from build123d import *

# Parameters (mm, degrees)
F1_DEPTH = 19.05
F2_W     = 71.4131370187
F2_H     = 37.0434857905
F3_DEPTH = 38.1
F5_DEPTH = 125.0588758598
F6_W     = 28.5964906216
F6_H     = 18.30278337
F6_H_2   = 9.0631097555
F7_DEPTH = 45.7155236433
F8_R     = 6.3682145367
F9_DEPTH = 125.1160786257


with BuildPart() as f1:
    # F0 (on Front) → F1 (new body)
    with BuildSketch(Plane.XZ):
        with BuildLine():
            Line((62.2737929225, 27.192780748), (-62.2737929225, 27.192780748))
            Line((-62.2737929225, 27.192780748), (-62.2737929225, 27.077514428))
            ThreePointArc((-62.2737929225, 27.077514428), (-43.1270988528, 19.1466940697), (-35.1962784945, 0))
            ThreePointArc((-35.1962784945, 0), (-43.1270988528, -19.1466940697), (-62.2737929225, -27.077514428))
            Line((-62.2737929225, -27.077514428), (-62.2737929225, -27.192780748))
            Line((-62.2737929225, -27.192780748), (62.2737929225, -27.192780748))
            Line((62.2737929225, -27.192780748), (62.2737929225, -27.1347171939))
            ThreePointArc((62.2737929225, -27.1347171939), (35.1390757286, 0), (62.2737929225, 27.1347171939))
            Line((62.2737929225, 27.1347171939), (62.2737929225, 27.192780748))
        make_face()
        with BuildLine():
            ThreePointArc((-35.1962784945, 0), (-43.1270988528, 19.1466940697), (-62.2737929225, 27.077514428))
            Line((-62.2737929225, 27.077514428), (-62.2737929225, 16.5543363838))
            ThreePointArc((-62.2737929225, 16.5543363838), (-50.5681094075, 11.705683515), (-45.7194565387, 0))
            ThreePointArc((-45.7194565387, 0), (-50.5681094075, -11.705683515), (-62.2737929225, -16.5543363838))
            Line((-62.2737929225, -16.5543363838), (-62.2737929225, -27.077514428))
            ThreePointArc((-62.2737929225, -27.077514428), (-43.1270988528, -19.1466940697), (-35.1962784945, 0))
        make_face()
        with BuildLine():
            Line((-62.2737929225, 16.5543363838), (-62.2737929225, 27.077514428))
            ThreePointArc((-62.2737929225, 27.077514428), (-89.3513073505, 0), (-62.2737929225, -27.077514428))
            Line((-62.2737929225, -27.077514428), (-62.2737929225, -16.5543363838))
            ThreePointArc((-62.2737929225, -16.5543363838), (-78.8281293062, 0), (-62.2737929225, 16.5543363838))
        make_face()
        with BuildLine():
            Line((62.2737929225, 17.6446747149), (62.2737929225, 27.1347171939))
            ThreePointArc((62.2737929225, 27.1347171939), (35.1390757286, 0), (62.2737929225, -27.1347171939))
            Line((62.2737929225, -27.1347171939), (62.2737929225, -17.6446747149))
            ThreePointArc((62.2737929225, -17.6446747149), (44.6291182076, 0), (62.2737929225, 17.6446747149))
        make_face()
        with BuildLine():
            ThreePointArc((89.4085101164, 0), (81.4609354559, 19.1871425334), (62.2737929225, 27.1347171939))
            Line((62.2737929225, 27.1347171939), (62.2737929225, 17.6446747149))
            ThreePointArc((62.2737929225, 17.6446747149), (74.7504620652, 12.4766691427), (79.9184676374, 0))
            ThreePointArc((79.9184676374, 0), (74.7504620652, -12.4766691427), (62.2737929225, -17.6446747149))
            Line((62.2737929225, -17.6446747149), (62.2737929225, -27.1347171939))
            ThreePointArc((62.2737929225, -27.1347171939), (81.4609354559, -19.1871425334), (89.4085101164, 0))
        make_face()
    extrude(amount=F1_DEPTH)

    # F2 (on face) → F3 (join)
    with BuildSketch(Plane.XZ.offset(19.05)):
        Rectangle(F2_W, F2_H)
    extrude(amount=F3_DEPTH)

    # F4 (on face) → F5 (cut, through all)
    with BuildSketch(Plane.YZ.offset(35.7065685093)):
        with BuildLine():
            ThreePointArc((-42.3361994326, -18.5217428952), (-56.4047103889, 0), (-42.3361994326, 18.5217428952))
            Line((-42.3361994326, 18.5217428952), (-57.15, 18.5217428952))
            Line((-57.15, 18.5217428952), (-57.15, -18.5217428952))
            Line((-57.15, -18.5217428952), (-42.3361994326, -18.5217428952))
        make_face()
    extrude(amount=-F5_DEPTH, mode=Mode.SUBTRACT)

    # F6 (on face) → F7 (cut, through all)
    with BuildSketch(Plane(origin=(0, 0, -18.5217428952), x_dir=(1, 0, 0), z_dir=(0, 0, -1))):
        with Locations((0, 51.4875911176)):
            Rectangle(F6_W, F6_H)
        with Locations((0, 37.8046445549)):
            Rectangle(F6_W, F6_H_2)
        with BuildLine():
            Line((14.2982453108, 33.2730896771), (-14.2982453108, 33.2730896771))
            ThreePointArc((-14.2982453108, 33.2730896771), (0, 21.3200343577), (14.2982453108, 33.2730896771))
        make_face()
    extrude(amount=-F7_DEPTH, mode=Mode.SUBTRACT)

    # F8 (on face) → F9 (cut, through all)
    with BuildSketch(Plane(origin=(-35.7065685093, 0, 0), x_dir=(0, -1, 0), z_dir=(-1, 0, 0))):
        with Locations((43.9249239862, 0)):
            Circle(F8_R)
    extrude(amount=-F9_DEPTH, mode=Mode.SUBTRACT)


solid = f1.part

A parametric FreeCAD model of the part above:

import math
import FreeCAD as App
import Part
import Sketcher
Q = App.Units.Quantity

doc = App.newDocument("Part")
body = doc.addObject("PartDesign::Body", "Body")

# Sketch on XZ plane
sketch1 = doc.addObject("Sketcher::SketchObject", "Sketch")
body.addObject(sketch1)
sketch1.AttachmentSupport = (doc.XZ_Plane, [""])
sketch1.MapMode = "FlatFace"
sketch1.addGeometry([
    Part.LineSegment(App.Vector(62.273793, 27.192781, 0), App.Vector(-62.273793, 27.192781, 0)),  # 0
    Part.LineSegment(App.Vector(-62.273793, 27.192781, 0), App.Vector(-62.273793, 27.077514, 0)),  # 1
    Part.ArcOfCircle(Part.Circle(App.Vector(-62.273793, 0, 0), App.Vector(0, 0, 1), 27.077514), math.radians(90), math.radians(270)),  # 2
    Part.LineSegment(App.Vector(-62.273793, -27.077514, 0), App.Vector(-62.273793, -27.192781, 0)),  # 3
    Part.LineSegment(App.Vector(-62.273793, -27.192781, 0), App.Vector(62.273793, -27.192781, 0)),  # 4
    Part.LineSegment(App.Vector(62.273793, -27.192781, 0), App.Vector(62.273793, -27.134717, 0)),  # 5
    Part.ArcOfCircle(Part.Circle(App.Vector(62.273793, 0, 0), App.Vector(0, 0, 1), 27.134717), math.radians(-90), math.radians(0)),  # 6
    Part.ArcOfCircle(Part.Circle(App.Vector(62.273793, 0, 0), App.Vector(0, 0, 1), 27.134717), math.radians(0), math.radians(90)),  # 7
    Part.LineSegment(App.Vector(62.273793, 27.134717, 0), App.Vector(62.273793, 27.192781, 0)),  # 8
    Part.ArcOfCircle(Part.Circle(App.Vector(62.273793, 0, 0), App.Vector(0, 0, 1), 17.644675), math.radians(90), math.radians(270)),  # 9
    Part.ArcOfCircle(Part.Circle(App.Vector(62.273793, 0, 0), App.Vector(0, 0, 1), 17.644675), math.radians(0), math.radians(90)),  # 10
    Part.ArcOfCircle(Part.Circle(App.Vector(62.273793, 0, 0), App.Vector(0, 0, 1), 17.644675), math.radians(-90), math.radians(0)),  # 11
    Part.ArcOfCircle(Part.Circle(App.Vector(-62.273793, 0, 0), App.Vector(0, 0, 1), 16.554336), math.radians(0), math.radians(90)),  # 12
    Part.ArcOfCircle(Part.Circle(App.Vector(-62.273793, 0, 0), App.Vector(0, 0, 1), 16.554336), math.radians(-90), math.radians(0)),  # 13
    Part.ArcOfCircle(Part.Circle(App.Vector(-62.273793, 0, 0), App.Vector(0, 0, 1), 16.554336), math.radians(90), math.radians(270)),  # 14
], False)
sketch1.addConstraint([
    Sketcher.Constraint("Coincident", 0, 2, 1, 1),
    Sketcher.Constraint("Coincident", 1, 2, 2, 1),
    Sketcher.Constraint("Coincident", 2, 2, 3, 1),
    Sketcher.Constraint("Coincident", 3, 2, 4, 1),
    Sketcher.Constraint("Coincident", 4, 2, 5, 1),
    Sketcher.Constraint("Coincident", 5, 2, 6, 1),
    Sketcher.Constraint("Tangent", 6, 2, 7, 1),
    Sketcher.Constraint("Coincident", 7, 2, 8, 1),
    Sketcher.Constraint("Coincident", 8, 2, 0, 1),
    Sketcher.Constraint("Tangent", 9, 1, 10, 2),
    Sketcher.Constraint("Tangent", 10, 1, 11, 2),
    Sketcher.Constraint("Tangent", 11, 1, 9, 2),
    Sketcher.Constraint("Tangent", 12, 1, 13, 2),
    Sketcher.Constraint("Tangent", 13, 1, 14, 2),
    Sketcher.Constraint("Tangent", 14, 1, 12, 2),
    Sketcher.Constraint("Horizontal", 0),
    Sketcher.Constraint("Vertical", 1),
    Sketcher.Constraint("Vertical", 3),
    Sketcher.Constraint("Horizontal", 4),
    Sketcher.Constraint("Vertical", 5),
    Sketcher.Constraint("Vertical", 8),
    Sketcher.Constraint("Coincident", 9, 3, 6, 3),
    Sketcher.Constraint("Coincident", 12, 3, 2, 3),
    Sketcher.Constraint("Equal", 6, 7),
    Sketcher.Constraint("Symmetric", 2, 3, 6, 3, -1, 1),
    Sketcher.Constraint("Symmetric", 0, 2, 4, 2, -1, 1),
    Sketcher.Constraint("Symmetric", 1, 2, 2, 2, -1),
    Sketcher.Constraint("PointOnObject", 6, 2, -1),
    Sketcher.Constraint("PointOnObject", 10, 1, -1),
    Sketcher.Constraint("PointOnObject", 12, 1, -1),
    Sketcher.Constraint("Vertical", 14, 3, 0, 2),
    Sketcher.Constraint("Vertical", 5, 2, 7, 2),
    Sketcher.Constraint("Vertical", 8, 2, 9, 1),
    Sketcher.Constraint("Vertical", 9, 1, 11, 1),
    Sketcher.Constraint("Vertical", 3, 2, 13, 1),
    Sketcher.Constraint("Vertical", 13, 1, 14, 1),
    Sketcher.Constraint("Radius", 2, Q("27.077514 mm")),
    Sketcher.Constraint("Radius", 6, Q("27.134717 mm")),
    Sketcher.Constraint("Radius", 9, Q("17.644675 mm")),
    Sketcher.Constraint("Radius", 12, Q("16.554336 mm")),
    Sketcher.Constraint("DistanceX", 0, 2, 0, 1, Q("124.547586 mm")),
    Sketcher.Constraint("DistanceY", 1, 2, 1, 1, Q("0.115266 mm")),
])
pad1 = doc.addObject("PartDesign::Pad", "Pad")
body.addObject(pad1)
pad1.Profile = sketch1
pad1.Length = Q("0.75 in")

# Sketch on XZ plane
sketch2 = doc.addObject("Sketcher::SketchObject", "Sketch001")
body.addObject(sketch2)
sketch2.AttachmentSupport = (doc.XZ_Plane, [""])
sketch2.MapMode = "FlatFace"
sketch2.AttachmentOffset = App.Placement(App.Vector(0, 0, 0.75 * 25.4), App.Rotation())
sketch2.addGeometry([
    Part.LineSegment(App.Vector(-35.706569, 18.521743, 0), App.Vector(-35.706569, -18.521743, 0)),
    Part.LineSegment(App.Vector(-35.706569, -18.521743, 0), App.Vector(35.706569, -18.521743, 0)),
    Part.LineSegment(App.Vector(35.706569, -18.521743, 0), App.Vector(35.706569, 18.521743, 0)),
    Part.LineSegment(App.Vector(35.706569, 18.521743, 0), App.Vector(-35.706569, 18.521743, 0)),
], False)
sketch2.addConstraint([
    Sketcher.Constraint("Coincident", 0, 2, 1, 1),
    Sketcher.Constraint("Coincident", 1, 2, 2, 1),
    Sketcher.Constraint("Coincident", 2, 2, 3, 1),
    Sketcher.Constraint("Coincident", 3, 2, 0, 1),
    Sketcher.Constraint("Vertical", 0),
    Sketcher.Constraint("Horizontal", 1),
    Sketcher.Constraint("Vertical", 2),
    Sketcher.Constraint("Horizontal", 3),
    Sketcher.Constraint("Symmetric", 0, 2, 2, 2, -1, 1),
    Sketcher.Constraint("DistanceX", 1, 1, 1, 2, Q("71.413137 mm")),
    Sketcher.Constraint("DistanceY", 0, 2, 0, 1, Q("37.043486 mm")),
])
pad2 = doc.addObject("PartDesign::Pad", "Pad001")
body.addObject(pad2)
pad2.Profile = sketch2
pad2.Length = Q("1.5 in")

# Sketch on YZ plane
sketch3 = doc.addObject("Sketcher::SketchObject", "Sketch002")
body.addObject(sketch3)
sketch3.AttachmentSupport = (doc.YZ_Plane, [""])
sketch3.MapMode = "FlatFace"
sketch3.AttachmentOffset = App.Placement(App.Vector(0, 0, 35.706569), App.Rotation())
sketch3.addGeometry([
    Part.ArcOfCircle(Part.Circle(App.Vector(-37.178157, 0, 0), App.Vector(0, 0, 1), 19.226554), math.radians(105.561766), math.radians(254.438234)),
    Part.LineSegment(App.Vector(-42.336199, 18.521743, 0), App.Vector(-57.15, 18.521743, 0)),
    Part.LineSegment(App.Vector(-57.15, 18.521743, 0), App.Vector(-57.15, -18.521743, 0)),
    Part.LineSegment(App.Vector(-57.15, -18.521743, 0), App.Vector(-42.336199, -18.521743, 0)),
], False)
sketch3.addConstraint([
    Sketcher.Constraint("Coincident", 0, 1, 1, 1),
    Sketcher.Constraint("Coincident", 1, 2, 2, 1),
    Sketcher.Constraint("Coincident", 2, 2, 3, 1),
    Sketcher.Constraint("Coincident", 3, 2, 0, 2),
    Sketcher.Constraint("Horizontal", 1),
    Sketcher.Constraint("Vertical", 2),
    Sketcher.Constraint("Horizontal", 3),
    Sketcher.Constraint("Symmetric", 0, 1, 3, 2, -1),
    Sketcher.Constraint("DistanceX", 1, 2, -1, 1, Q("2.25 in")),
    Sketcher.Constraint("DistanceX", 1, 2, 1, 1, Q("14.813801 mm")),
    Sketcher.Constraint("Radius", 0, Q("19.226554 mm")),
    Sketcher.Constraint("DistanceY", 2, 2, 2, 1, Q("37.043486 mm")),
])
pocket1 = doc.addObject("PartDesign::Pocket", "Pocket")
body.addObject(pocket1)
pocket1.Profile = sketch3
pocket1.Type = "ThroughAll"

# Sketch on XY plane
sketch4 = doc.addObject("Sketcher::SketchObject", "Sketch003")
body.addObject(sketch4)
sketch4.AttachmentSupport = (doc.XY_Plane, [""])
sketch4.MapMode = "FlatFace"
sketch4.AttachmentOffset = App.Placement(App.Vector(0, 0, -18.521743), App.Rotation())
sketch4.addGeometry([
    Part.LineSegment(App.Vector(-14.298245, -60.638983, 0), App.Vector(-14.298245, -33.27309, 0)),
    Part.ArcOfCircle(Part.Circle(App.Vector(0, -35.848343, 0), App.Vector(0, 0, 1), 14.528309), math.radians(10.210064), math.radians(169.789936)),
    Part.LineSegment(App.Vector(14.298245, -33.27309, 0), App.Vector(14.298245, -60.638983, 0)),
    Part.LineSegment(App.Vector(14.298245, -60.638983, 0), App.Vector(-14.298245, -60.638983, 0)),
], False)
sketch4.addConstraint([
    Sketcher.Constraint("Coincident", 0, 2, 1, 2),
    Sketcher.Constraint("Coincident", 1, 1, 2, 1),
    Sketcher.Constraint("Coincident", 2, 2, 3, 1),
    Sketcher.Constraint("Coincident", 3, 2, 0, 1),
    Sketcher.Constraint("Vertical", 0),
    Sketcher.Constraint("Vertical", 2),
    Sketcher.Constraint("Horizontal", 3),
    Sketcher.Constraint("Symmetric", 0, 2, 1, 1, -2),
    Sketcher.Constraint("Radius", 1, Q("14.528309 mm")),
    Sketcher.Constraint("DistanceX", 3, 2, 3, 1, Q("28.596491 mm")),
    Sketcher.Constraint("DistanceY", 0, 1, 0, 2, Q("27.365893 mm")),
    Sketcher.Constraint("DistanceY", 0, 2, -1, 1, Q("33.27309 mm")),
])
pocket2 = doc.addObject("PartDesign::Pocket", "Pocket001")
body.addObject(pocket2)
pocket2.Profile = sketch4
pocket2.Type = "ThroughAll"
pocket2.Reversed = True

# Sketch on YZ plane
sketch5 = doc.addObject("Sketcher::SketchObject", "Sketch004")
body.addObject(sketch5)
sketch5.AttachmentSupport = (doc.YZ_Plane, [""])
sketch5.MapMode = "FlatFace"
sketch5.AttachmentOffset = App.Placement(App.Vector(0, 0, -35.706569), App.Rotation())
sketch5.addGeometry(Part.Circle(App.Vector(-43.924924, 0, 0), App.Vector(0, 0, 1), 6.368215), False)
sketch5.addConstraint([
    Sketcher.Constraint("PointOnObject", 0, 3, -1),
    Sketcher.Constraint("Diameter", 0, Q("12.736429 mm")),
    Sketcher.Constraint("DistanceX", 0, 3, -1, 1, Q("43.924924 mm")),
])
pocket3 = doc.addObject("PartDesign::Pocket", "Pocket002")
body.addObject(pocket3)
pocket3.Profile = sketch5
pocket3.Type = "ThroughAll"
pocket3.Reversed = True

doc.recompute()
